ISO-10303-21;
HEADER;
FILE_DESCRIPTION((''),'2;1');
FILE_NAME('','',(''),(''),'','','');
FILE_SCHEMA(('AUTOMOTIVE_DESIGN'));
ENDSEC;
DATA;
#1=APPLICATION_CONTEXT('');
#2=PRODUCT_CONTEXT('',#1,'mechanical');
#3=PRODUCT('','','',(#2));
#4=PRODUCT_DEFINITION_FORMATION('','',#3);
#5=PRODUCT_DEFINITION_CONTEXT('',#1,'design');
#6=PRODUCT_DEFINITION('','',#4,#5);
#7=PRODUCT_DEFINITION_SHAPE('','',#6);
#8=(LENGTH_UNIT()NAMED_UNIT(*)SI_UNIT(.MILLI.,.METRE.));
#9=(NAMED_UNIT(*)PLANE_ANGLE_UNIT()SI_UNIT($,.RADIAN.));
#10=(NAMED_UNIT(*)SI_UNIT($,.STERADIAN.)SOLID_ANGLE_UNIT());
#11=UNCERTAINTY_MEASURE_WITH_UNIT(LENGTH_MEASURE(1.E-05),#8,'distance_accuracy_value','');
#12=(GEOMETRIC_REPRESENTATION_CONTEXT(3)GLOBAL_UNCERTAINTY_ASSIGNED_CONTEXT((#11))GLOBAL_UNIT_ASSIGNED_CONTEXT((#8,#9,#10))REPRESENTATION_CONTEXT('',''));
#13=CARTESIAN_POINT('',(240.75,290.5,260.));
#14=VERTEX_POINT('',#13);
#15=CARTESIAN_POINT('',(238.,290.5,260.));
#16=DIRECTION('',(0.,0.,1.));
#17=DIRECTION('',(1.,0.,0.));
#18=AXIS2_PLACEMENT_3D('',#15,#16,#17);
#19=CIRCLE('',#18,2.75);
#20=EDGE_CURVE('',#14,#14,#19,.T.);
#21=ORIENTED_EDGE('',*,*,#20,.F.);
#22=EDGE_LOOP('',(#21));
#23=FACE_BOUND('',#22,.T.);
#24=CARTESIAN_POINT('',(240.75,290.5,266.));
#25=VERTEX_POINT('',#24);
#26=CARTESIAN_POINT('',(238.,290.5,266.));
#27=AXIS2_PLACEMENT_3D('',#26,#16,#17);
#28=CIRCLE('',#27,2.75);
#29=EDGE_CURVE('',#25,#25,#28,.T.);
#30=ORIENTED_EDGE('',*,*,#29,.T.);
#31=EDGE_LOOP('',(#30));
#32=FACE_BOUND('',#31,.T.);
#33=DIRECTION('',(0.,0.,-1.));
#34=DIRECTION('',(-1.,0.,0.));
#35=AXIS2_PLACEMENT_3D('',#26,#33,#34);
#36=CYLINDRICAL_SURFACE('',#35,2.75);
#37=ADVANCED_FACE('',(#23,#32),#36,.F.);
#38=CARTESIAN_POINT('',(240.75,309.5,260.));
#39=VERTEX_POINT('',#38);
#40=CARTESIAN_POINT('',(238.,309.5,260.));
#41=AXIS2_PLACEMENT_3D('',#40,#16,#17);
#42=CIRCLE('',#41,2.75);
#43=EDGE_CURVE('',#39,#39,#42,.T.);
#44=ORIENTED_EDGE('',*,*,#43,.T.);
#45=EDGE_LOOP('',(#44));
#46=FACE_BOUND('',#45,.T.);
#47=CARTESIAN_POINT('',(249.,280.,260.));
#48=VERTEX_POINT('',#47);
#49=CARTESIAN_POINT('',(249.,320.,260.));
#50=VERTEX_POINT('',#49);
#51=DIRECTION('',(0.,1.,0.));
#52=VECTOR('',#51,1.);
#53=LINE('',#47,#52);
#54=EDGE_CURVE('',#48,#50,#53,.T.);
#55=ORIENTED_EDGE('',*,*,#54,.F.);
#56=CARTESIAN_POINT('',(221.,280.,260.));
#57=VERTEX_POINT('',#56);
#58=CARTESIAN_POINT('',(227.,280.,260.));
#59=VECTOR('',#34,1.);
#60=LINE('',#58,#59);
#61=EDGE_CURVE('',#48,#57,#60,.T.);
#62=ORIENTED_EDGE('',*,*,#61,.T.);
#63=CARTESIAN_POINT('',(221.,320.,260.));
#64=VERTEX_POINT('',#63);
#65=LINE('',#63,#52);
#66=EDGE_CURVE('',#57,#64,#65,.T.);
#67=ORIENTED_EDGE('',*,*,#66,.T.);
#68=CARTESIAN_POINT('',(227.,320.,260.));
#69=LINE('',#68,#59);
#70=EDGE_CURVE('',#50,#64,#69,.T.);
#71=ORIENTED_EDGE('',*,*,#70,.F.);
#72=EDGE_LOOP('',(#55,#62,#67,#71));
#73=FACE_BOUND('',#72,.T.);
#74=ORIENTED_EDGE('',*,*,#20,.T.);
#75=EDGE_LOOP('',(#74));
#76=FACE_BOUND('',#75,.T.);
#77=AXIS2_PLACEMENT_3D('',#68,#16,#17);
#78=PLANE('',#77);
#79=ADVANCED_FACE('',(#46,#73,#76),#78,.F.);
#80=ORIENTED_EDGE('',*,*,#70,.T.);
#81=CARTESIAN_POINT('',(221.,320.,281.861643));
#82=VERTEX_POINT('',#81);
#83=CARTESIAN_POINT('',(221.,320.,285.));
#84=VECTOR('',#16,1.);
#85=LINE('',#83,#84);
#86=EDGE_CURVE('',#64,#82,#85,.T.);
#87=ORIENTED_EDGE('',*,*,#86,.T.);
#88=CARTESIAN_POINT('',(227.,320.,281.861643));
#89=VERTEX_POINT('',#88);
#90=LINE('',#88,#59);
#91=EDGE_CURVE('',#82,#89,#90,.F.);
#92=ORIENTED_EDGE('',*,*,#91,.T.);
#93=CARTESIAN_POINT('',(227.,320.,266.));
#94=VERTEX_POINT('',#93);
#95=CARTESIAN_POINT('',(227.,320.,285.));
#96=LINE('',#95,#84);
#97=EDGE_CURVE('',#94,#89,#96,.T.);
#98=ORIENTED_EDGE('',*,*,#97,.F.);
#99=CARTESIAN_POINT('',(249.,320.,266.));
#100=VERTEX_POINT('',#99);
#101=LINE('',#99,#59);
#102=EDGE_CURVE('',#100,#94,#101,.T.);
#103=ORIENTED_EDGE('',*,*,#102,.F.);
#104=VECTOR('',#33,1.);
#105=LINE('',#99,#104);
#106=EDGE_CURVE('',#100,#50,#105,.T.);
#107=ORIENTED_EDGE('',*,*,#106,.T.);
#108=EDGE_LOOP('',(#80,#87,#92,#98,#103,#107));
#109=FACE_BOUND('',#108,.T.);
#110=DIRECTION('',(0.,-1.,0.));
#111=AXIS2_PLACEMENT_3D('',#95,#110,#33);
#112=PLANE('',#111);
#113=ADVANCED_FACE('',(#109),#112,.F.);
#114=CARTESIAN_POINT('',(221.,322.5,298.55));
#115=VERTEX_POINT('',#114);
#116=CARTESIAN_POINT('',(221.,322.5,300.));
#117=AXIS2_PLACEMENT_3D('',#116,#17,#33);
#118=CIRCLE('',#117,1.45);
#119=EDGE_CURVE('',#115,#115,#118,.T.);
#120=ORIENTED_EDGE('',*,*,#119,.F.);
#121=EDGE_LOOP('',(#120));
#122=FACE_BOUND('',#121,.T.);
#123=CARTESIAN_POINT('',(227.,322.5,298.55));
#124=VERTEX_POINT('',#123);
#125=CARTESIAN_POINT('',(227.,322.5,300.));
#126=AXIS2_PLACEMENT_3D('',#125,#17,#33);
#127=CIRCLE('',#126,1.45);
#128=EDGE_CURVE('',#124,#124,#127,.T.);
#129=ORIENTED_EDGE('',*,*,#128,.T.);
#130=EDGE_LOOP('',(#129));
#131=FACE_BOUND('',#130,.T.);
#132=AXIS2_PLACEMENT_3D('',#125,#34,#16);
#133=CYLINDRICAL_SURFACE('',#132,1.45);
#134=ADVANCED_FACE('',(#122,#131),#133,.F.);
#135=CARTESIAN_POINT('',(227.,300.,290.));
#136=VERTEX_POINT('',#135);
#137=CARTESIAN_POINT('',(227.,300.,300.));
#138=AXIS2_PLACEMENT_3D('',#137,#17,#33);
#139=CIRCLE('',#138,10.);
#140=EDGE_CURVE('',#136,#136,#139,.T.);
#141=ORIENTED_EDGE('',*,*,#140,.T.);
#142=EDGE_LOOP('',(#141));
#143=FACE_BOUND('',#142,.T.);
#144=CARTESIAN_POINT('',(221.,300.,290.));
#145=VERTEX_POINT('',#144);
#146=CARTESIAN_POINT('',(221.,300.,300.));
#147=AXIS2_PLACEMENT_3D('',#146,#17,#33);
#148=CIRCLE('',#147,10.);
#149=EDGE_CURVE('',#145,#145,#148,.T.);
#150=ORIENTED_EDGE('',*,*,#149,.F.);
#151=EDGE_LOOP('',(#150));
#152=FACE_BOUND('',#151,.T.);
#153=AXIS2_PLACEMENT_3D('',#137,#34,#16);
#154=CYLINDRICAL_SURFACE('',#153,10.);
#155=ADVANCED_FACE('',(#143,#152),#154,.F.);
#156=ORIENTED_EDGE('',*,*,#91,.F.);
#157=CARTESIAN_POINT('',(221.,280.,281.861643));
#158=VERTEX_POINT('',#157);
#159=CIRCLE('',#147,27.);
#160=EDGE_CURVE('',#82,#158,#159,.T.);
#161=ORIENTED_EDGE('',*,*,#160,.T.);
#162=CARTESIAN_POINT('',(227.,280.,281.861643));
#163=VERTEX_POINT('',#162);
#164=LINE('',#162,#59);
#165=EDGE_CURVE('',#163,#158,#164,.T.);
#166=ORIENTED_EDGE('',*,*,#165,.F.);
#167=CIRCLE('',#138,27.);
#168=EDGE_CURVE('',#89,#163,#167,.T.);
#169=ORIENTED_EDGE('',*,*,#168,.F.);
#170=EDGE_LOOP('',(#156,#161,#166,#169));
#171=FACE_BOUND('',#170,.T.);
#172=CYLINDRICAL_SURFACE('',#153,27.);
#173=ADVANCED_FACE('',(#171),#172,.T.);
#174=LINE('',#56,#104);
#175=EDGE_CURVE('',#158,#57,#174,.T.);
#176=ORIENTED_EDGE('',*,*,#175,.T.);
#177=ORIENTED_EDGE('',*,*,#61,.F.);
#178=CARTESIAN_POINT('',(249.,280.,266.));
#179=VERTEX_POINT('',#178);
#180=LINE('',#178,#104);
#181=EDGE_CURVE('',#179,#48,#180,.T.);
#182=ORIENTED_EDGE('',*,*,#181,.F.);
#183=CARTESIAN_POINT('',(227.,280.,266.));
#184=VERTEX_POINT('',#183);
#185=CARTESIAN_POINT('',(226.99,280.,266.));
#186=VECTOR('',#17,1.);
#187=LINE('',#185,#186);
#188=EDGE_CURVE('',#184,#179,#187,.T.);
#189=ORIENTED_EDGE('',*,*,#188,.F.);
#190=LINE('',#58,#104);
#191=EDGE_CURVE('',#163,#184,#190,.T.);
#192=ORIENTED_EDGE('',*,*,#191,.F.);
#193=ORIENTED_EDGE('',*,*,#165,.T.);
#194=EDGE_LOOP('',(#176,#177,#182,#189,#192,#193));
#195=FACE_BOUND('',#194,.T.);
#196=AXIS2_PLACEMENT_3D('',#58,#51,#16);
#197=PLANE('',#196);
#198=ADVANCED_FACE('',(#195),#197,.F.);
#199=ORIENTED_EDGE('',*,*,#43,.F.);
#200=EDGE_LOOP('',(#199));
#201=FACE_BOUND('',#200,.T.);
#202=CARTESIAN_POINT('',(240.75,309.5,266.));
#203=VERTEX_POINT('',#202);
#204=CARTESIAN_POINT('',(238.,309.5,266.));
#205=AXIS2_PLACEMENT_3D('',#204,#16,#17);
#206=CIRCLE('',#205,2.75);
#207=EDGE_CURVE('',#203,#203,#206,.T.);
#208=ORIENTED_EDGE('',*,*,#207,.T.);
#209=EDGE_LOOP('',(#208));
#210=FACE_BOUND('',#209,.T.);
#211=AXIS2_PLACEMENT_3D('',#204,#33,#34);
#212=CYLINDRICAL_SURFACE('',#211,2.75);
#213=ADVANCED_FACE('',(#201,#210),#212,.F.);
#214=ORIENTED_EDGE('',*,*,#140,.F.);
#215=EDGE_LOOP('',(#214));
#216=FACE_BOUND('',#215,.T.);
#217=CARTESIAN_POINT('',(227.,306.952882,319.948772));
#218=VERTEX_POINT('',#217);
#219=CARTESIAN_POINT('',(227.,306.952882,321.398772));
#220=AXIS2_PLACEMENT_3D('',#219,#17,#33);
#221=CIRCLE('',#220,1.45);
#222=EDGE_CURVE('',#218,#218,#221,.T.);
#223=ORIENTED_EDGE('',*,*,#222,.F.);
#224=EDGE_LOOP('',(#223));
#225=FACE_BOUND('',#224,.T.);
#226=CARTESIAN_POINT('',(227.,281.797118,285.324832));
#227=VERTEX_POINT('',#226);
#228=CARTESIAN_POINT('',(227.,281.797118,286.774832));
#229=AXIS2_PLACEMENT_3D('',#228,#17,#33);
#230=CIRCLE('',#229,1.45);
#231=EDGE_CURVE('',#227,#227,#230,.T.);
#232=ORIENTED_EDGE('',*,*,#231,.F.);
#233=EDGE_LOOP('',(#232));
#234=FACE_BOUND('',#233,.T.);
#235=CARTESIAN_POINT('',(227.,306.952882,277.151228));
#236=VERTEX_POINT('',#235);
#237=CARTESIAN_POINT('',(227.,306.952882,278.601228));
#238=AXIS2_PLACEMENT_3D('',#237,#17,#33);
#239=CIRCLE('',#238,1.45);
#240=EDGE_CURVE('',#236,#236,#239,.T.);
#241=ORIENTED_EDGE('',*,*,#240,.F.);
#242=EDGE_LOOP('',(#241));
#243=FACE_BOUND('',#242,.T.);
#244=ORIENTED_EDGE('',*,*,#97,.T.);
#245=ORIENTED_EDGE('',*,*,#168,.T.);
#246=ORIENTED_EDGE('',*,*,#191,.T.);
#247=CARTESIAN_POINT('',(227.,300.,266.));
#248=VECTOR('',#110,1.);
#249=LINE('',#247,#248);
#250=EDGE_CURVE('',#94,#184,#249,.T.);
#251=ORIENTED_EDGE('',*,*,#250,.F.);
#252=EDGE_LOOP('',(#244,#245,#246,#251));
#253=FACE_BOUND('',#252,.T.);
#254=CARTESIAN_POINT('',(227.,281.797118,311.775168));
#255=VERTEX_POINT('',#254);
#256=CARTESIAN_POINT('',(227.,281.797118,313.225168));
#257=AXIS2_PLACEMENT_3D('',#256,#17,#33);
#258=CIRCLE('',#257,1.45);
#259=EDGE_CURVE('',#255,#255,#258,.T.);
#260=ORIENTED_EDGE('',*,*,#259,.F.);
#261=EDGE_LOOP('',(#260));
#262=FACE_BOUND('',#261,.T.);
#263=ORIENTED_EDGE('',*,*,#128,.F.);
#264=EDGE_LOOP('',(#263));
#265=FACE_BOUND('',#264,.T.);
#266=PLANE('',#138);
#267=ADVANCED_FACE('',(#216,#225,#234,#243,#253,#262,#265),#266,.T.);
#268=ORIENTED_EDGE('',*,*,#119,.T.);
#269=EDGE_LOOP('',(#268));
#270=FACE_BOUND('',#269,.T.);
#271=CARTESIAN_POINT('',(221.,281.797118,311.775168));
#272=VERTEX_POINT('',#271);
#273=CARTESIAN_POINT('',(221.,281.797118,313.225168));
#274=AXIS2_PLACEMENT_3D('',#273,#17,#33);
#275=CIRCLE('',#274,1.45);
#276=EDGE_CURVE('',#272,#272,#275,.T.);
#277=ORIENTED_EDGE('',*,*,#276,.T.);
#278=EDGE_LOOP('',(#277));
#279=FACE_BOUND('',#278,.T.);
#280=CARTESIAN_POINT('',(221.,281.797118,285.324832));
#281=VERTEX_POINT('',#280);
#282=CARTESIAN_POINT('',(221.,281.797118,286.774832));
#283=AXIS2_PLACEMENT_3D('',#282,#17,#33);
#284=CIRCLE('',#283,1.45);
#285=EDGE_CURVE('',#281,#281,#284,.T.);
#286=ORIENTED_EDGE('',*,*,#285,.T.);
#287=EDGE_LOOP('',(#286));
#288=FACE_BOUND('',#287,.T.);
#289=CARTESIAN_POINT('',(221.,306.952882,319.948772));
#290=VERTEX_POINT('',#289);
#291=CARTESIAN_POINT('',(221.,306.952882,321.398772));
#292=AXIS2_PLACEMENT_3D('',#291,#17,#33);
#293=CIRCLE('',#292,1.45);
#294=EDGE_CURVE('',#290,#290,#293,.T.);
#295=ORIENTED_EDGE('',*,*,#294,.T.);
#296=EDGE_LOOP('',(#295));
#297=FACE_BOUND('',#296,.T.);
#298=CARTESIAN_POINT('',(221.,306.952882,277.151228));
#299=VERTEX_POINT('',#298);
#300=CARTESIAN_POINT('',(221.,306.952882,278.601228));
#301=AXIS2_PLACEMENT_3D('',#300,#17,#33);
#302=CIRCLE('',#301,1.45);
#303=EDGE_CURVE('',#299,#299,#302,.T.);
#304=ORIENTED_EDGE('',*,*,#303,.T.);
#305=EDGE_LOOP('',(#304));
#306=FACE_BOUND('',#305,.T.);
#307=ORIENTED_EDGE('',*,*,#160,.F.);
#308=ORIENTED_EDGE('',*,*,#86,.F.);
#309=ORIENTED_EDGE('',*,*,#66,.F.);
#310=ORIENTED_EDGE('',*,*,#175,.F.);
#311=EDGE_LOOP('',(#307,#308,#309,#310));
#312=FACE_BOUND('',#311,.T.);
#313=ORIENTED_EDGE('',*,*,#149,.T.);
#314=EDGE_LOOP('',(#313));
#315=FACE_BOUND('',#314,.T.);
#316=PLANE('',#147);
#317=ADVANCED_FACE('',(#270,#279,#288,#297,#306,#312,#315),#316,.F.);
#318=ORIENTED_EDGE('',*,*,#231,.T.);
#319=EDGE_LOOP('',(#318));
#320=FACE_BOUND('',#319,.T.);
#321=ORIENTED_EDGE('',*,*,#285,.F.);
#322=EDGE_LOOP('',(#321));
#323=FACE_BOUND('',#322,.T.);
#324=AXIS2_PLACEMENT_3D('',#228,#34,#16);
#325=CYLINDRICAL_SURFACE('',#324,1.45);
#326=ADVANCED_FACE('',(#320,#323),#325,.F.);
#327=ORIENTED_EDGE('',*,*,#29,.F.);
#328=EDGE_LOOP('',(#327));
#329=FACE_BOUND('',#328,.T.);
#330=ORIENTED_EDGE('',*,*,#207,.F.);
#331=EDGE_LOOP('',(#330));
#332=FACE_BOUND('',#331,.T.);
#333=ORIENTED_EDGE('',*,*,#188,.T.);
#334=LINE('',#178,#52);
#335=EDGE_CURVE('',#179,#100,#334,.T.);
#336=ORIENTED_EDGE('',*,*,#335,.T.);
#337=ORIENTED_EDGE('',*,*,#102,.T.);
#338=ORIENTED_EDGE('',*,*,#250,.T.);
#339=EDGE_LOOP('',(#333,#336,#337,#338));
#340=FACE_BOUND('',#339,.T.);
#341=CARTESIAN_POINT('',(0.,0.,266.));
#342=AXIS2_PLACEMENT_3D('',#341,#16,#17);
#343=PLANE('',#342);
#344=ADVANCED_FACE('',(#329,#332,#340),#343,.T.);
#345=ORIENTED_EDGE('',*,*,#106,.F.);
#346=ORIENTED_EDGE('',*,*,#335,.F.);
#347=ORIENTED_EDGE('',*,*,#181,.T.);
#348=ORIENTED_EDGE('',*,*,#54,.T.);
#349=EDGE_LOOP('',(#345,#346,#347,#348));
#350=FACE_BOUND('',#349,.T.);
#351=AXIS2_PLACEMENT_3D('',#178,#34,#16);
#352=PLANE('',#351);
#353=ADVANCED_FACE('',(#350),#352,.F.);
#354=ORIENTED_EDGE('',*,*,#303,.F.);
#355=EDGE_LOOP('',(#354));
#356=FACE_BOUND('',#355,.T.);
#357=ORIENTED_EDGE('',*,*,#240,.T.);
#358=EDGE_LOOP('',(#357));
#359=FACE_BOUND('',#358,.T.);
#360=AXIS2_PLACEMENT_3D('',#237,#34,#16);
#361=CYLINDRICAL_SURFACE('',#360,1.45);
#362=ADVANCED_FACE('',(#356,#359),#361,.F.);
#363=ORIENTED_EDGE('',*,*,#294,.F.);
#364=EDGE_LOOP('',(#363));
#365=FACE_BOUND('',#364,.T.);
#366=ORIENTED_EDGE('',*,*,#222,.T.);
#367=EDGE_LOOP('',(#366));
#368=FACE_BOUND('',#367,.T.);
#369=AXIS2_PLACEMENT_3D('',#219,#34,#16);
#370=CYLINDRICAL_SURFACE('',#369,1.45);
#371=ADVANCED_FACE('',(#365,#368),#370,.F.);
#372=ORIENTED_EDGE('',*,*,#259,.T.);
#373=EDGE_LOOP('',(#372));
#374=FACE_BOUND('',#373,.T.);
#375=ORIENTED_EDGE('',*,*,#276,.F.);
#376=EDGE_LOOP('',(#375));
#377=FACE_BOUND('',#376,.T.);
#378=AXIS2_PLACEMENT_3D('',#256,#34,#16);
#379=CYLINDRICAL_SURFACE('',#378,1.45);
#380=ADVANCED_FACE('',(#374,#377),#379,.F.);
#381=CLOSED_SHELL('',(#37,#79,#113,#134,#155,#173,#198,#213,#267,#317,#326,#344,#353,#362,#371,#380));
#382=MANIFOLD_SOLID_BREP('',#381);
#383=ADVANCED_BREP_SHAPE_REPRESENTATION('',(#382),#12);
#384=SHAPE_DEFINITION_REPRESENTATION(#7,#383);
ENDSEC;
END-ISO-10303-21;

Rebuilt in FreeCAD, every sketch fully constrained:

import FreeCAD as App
import Part
import Sketcher
from FreeCAD import Vector
Q = App.Units.Quantity

doc = App.newDocument("Part")
params = doc.addObject("Spreadsheet::Sheet", "Params")
for row, (alias, value) in enumerate([
    ("sketch1_diameter", "54 mm"),
    ("pad1_length", "6 mm"),
    ("sketch2_width", "40 mm"),
    ("sketch2_height", "25 mm"),
    ("pad2_length", "6 mm"),
    ("sketch3_diameter", "20 mm"),
    ("sketch3_diameter2", "2.9 mm"),
    ("pocket1_length", "6 mm"),
    ("sketch4_diameter", "5.5 mm"),
    ("sketch4_height", "40 mm"),
    ("sketch4_width", "22.01 mm"),
    ("pad3_length", "6 mm"),
], start=1):
    params.set(f"A{row}", alias)
    params.set(f"B{row}", "=" + value)
    params.setAlias(f"B{row}", alias)

body = doc.addObject("PartDesign::Body", "Body")

sketch1 = body.newObject("Sketcher::SketchObject", "Sketch")
sketch1.AttachmentSupport = (doc.getObject("YZ_Plane"), [""])
sketch1.MapMode = "FlatFace"
sketch1.AttachmentOffset = App.Placement(Vector(0, 0, 221), App.Rotation())
sketch1.addGeometry(Part.Circle(Vector(300, 300, 0), Vector(0, 0, 1), 27), False)
sketch1.addConstraint(Sketcher.Constraint("Diameter", 0, Q("54 mm")))
sketch1.addConstraint(Sketcher.Constraint("DistanceX", -1, 1, 0, 3, Q("300 mm")))
sketch1.addConstraint(Sketcher.Constraint("DistanceY", -1, 1, 0, 3, Q("300 mm")))
sketch1.setExpression("Constraints[0]", "Params.sketch1_diameter")
pad1 = body.newObject("PartDesign::Pad", "Pad")
pad1.Profile = sketch1
pad1.setExpression("Length", "Params.pad1_length")

sketch2 = body.newObject("Sketcher::SketchObject", "Sketch001")
sketch2.AttachmentSupport = (doc.getObject("YZ_Plane"), [""])
sketch2.MapMode = "FlatFace"
sketch2.AttachmentOffset = App.Placement(Vector(0, 0, 221), App.Rotation())
sketch2.addGeometry(Part.LineSegment(Vector(320, 285, 0), Vector(280, 285, 0)), False)
sketch2.addGeometry(Part.LineSegment(Vector(280, 285, 0), Vector(280, 260, 0)), False)
sketch2.addGeometry(Part.LineSegment(Vector(280, 260, 0), Vector(320, 260, 0)), False)
sketch2.addGeometry(Part.LineSegment(Vector(320, 260, 0), Vector(320, 285, 0)), False)
sketch2.addConstraint(Sketcher.Constraint("Coincident", 0, 2, 1, 1))
sketch2.addConstraint(Sketcher.Constraint("Coincident", 1, 2, 2, 1))
sketch2.addConstraint(Sketcher.Constraint("Coincident", 2, 2, 3, 1))
sketch2.addConstraint(Sketcher.Constraint("Coincident", 3, 2, 0, 1))
sketch2.addConstraint(Sketcher.Constraint("Horizontal", 0))
sketch2.addConstraint(Sketcher.Constraint("Vertical", 1))
sketch2.addConstraint(Sketcher.Constraint("Horizontal", 2))
sketch2.addConstraint(Sketcher.Constraint("Vertical", 3))
sketch2.addConstraint(Sketcher.Constraint("DistanceX", 0, 2, 0, 1, Q("40 mm")))
sketch2.addConstraint(Sketcher.Constraint("DistanceY", 1, 2, 1, 1, Q("25 mm")))
sketch2.addConstraint(Sketcher.Constraint("DistanceX", -1, 1, 0, 2, Q("280 mm")))
sketch2.addConstraint(Sketcher.Constraint("DistanceY", -1, 1, 0, 2, Q("285 mm")))
sketch2.setExpression("Constraints[8]", "Params.sketch2_width")
sketch2.setExpression("Constraints[9]", "Params.sketch2_height")
pad2 = body.newObject("PartDesign::Pad", "Pad001")
pad2.Profile = sketch2
pad2.setExpression("Length", "Params.pad2_length")

sketch3 = body.newObject("Sketcher::SketchObject", "Sketch002")
sketch3.AttachmentSupport = (doc.getObject("YZ_Plane"), [""])
sketch3.MapMode = "FlatFace"
sketch3.AttachmentOffset = App.Placement(Vector(0, 0, 221), App.Rotation())
sketch3.addGeometry(Part.Circle(Vector(300, 300, 0), Vector(0, 0, 1), 10), False)
sketch3.addGeometry(Part.Circle(Vector(322.5, 300, 0), Vector(0, 0, 1), 1.45), False)
sketch3.addGeometry(Part.Circle(Vector(306.952882, 278.601228, 0), Vector(0, 0, 1), 1.45), False)
sketch3.addGeometry(Part.Circle(Vector(281.797118, 286.774832, 0), Vector(0, 0, 1), 1.45), False)
sketch3.addGeometry(Part.Circle(Vector(281.797118, 313.225168, 0), Vector(0, 0, 1), 1.45), False)
sketch3.addGeometry(Part.Circle(Vector(306.952882, 321.398772, 0), Vector(0, 0, 1), 1.45), False)
sketch3.addConstraint(Sketcher.Constraint("Equal", 1, 2))
sketch3.addConstraint(Sketcher.Constraint("Equal", 2, 3))
sketch3.addConstraint(Sketcher.Constraint("Equal", 3, 4))
sketch3.addConstraint(Sketcher.Constraint("Equal", 4, 5))
sketch3.addConstraint(Sketcher.Constraint("Horizontal", 0, 3, 1, 3))
sketch3.addConstraint(Sketcher.Constraint("Vertical", 3, 3, 4, 3))
sketch3.addConstraint(Sketcher.Constraint("Vertical", 2, 3, 5, 3))
sketch3.addConstraint(Sketcher.Constraint("Diameter", 0, Q("20 mm")))
sketch3.addConstraint(Sketcher.Constraint("Diameter", 1, Q("2.9 mm")))
sketch3.addConstraint(Sketcher.Constraint("DistanceX", -1, 1, 0, 3, Q("300 mm")))
sketch3.addConstraint(Sketcher.Constraint("DistanceY", -1, 1, 0, 3, Q("300 mm")))
sketch3.addConstraint(Sketcher.Constraint("DistanceX", -1, 1, 1, 3, Q("322.5 mm")))
sketch3.addConstraint(Sketcher.Constraint("DistanceY", -1, 1, 2, 3, Q("278.601228 mm")))
sketch3.addConstraint(Sketcher.Constraint("DistanceY", -1, 1, 3, 3, Q("286.774832 mm")))
sketch3.addConstraint(Sketcher.Constraint("DistanceY", -1, 1, 4, 3, Q("313.225168 mm")))
sketch3.addConstraint(Sketcher.Constraint("DistanceY", -1, 1, 5, 3, Q("321.398772 mm")))
sketch3.addConstraint(Sketcher.Constraint("DistanceX", -1, 1, 2, 3, Q("306.952882 mm")))
sketch3.addConstraint(Sketcher.Constraint("DistanceX", -1, 1, 3, 3, Q("281.797118 mm")))
sketch3.setExpression("Constraints[7]", "Params.sketch3_diameter")
sketch3.setExpression("Constraints[8]", "Params.sketch3_diameter2")
pocket1 = body.newObject("PartDesign::Pocket", "Pocket")
pocket1.Profile = sketch3
pocket1.setExpression("Length", "Params.pocket1_length")
pocket1.Reversed = True

sketch4 = body.newObject("Sketcher::SketchObject", "Sketch003")
sketch4.AttachmentSupport = (doc.getObject("XY_Plane"), [""])
sketch4.MapMode = "FlatFace"
sketch4.AttachmentOffset = App.Placement(Vector(0, 0, 260), App.Rotation())
sketch4.addGeometry(Part.LineSegment(Vector(226.99, 320, 0), Vector(226.99, 280, 0)), False)
sketch4.addGeometry(Part.LineSegment(Vector(226.99, 280, 0), Vector(249, 280, 0)), False)
sketch4.addGeometry(Part.LineSegment(Vector(249, 280, 0), Vector(249, 320, 0)), False)
sketch4.addGeometry(Part.LineSegment(Vector(249, 320, 0), Vector(226.99, 320, 0)), False)
sketch4.addGeometry(Part.Circle(Vector(238, 290.5, 0), Vector(0, 0, 1), 2.75), False)
sketch4.addGeometry(Part.Circle(Vector(238, 309.5, 0), Vector(0, 0, 1), 2.75), False)
sketch4.addConstraint(Sketcher.Constraint("Coincident", 0, 2, 1, 1))
sketch4.addConstraint(Sketcher.Constraint("Coincident", 1, 2, 2, 1))
sketch4.addConstraint(Sketcher.Constraint("Coincident", 2, 2, 3, 1))
sketch4.addConstraint(Sketcher.Constraint("Coincident", 3, 2, 0, 1))
sketch4.addConstraint(Sketcher.Constraint("Vertical", 0))
sketch4.addConstraint(Sketcher.Constraint("Horizontal", 1))
sketch4.addConstraint(Sketcher.Constraint("Vertical", 2))
sketch4.addConstraint(Sketcher.Constraint("Horizontal", 3))
sketch4.addConstraint(Sketcher.Constraint("Equal", 4, 5))
sketch4.addConstraint(Sketcher.Constraint("Vertical", 4, 3, 5, 3))
sketch4.addConstraint(Sketcher.Constraint("Diameter", 4, Q("5.5 mm")))
sketch4.addConstraint(Sketcher.Constraint("DistanceY", 0, 2, 0, 1, Q("40 mm")))
sketch4.addConstraint(Sketcher.Constraint("DistanceX", -1, 1, 4, 3, Q("238 mm")))
sketch4.addConstraint(Sketcher.Constraint("DistanceY", -1, 1, 0, 2, Q("280 mm")))
sketch4.addConstraint(Sketcher.Constraint("DistanceX", -1, 1, 1, 2, Q("249 mm")))
sketch4.addConstraint(Sketcher.Constraint("DistanceY", 4, 3, 5, 3, Q("19 mm")))
sketch4.addConstraint(Sketcher.Constraint("DistanceX", 1, 1, 1, 2, Q("22.01 mm")))
sketch4.addConstraint(Sketcher.Constraint("DistanceY", -1, 1, 4, 3, Q("290.5 mm")))
sketch4.setExpression("Constraints[10]", "Params.sketch4_diameter")
sketch4.setExpression("Constraints[11]", "Params.sketch4_height")
sketch4.setExpression("Constraints[16]", "Params.sketch4_width")
pad3 = body.newObject("PartDesign::Pad", "Pad002")
pad3.Profile = sketch4
pad3.setExpression("Length", "Params.pad3_length")

doc.recompute()
